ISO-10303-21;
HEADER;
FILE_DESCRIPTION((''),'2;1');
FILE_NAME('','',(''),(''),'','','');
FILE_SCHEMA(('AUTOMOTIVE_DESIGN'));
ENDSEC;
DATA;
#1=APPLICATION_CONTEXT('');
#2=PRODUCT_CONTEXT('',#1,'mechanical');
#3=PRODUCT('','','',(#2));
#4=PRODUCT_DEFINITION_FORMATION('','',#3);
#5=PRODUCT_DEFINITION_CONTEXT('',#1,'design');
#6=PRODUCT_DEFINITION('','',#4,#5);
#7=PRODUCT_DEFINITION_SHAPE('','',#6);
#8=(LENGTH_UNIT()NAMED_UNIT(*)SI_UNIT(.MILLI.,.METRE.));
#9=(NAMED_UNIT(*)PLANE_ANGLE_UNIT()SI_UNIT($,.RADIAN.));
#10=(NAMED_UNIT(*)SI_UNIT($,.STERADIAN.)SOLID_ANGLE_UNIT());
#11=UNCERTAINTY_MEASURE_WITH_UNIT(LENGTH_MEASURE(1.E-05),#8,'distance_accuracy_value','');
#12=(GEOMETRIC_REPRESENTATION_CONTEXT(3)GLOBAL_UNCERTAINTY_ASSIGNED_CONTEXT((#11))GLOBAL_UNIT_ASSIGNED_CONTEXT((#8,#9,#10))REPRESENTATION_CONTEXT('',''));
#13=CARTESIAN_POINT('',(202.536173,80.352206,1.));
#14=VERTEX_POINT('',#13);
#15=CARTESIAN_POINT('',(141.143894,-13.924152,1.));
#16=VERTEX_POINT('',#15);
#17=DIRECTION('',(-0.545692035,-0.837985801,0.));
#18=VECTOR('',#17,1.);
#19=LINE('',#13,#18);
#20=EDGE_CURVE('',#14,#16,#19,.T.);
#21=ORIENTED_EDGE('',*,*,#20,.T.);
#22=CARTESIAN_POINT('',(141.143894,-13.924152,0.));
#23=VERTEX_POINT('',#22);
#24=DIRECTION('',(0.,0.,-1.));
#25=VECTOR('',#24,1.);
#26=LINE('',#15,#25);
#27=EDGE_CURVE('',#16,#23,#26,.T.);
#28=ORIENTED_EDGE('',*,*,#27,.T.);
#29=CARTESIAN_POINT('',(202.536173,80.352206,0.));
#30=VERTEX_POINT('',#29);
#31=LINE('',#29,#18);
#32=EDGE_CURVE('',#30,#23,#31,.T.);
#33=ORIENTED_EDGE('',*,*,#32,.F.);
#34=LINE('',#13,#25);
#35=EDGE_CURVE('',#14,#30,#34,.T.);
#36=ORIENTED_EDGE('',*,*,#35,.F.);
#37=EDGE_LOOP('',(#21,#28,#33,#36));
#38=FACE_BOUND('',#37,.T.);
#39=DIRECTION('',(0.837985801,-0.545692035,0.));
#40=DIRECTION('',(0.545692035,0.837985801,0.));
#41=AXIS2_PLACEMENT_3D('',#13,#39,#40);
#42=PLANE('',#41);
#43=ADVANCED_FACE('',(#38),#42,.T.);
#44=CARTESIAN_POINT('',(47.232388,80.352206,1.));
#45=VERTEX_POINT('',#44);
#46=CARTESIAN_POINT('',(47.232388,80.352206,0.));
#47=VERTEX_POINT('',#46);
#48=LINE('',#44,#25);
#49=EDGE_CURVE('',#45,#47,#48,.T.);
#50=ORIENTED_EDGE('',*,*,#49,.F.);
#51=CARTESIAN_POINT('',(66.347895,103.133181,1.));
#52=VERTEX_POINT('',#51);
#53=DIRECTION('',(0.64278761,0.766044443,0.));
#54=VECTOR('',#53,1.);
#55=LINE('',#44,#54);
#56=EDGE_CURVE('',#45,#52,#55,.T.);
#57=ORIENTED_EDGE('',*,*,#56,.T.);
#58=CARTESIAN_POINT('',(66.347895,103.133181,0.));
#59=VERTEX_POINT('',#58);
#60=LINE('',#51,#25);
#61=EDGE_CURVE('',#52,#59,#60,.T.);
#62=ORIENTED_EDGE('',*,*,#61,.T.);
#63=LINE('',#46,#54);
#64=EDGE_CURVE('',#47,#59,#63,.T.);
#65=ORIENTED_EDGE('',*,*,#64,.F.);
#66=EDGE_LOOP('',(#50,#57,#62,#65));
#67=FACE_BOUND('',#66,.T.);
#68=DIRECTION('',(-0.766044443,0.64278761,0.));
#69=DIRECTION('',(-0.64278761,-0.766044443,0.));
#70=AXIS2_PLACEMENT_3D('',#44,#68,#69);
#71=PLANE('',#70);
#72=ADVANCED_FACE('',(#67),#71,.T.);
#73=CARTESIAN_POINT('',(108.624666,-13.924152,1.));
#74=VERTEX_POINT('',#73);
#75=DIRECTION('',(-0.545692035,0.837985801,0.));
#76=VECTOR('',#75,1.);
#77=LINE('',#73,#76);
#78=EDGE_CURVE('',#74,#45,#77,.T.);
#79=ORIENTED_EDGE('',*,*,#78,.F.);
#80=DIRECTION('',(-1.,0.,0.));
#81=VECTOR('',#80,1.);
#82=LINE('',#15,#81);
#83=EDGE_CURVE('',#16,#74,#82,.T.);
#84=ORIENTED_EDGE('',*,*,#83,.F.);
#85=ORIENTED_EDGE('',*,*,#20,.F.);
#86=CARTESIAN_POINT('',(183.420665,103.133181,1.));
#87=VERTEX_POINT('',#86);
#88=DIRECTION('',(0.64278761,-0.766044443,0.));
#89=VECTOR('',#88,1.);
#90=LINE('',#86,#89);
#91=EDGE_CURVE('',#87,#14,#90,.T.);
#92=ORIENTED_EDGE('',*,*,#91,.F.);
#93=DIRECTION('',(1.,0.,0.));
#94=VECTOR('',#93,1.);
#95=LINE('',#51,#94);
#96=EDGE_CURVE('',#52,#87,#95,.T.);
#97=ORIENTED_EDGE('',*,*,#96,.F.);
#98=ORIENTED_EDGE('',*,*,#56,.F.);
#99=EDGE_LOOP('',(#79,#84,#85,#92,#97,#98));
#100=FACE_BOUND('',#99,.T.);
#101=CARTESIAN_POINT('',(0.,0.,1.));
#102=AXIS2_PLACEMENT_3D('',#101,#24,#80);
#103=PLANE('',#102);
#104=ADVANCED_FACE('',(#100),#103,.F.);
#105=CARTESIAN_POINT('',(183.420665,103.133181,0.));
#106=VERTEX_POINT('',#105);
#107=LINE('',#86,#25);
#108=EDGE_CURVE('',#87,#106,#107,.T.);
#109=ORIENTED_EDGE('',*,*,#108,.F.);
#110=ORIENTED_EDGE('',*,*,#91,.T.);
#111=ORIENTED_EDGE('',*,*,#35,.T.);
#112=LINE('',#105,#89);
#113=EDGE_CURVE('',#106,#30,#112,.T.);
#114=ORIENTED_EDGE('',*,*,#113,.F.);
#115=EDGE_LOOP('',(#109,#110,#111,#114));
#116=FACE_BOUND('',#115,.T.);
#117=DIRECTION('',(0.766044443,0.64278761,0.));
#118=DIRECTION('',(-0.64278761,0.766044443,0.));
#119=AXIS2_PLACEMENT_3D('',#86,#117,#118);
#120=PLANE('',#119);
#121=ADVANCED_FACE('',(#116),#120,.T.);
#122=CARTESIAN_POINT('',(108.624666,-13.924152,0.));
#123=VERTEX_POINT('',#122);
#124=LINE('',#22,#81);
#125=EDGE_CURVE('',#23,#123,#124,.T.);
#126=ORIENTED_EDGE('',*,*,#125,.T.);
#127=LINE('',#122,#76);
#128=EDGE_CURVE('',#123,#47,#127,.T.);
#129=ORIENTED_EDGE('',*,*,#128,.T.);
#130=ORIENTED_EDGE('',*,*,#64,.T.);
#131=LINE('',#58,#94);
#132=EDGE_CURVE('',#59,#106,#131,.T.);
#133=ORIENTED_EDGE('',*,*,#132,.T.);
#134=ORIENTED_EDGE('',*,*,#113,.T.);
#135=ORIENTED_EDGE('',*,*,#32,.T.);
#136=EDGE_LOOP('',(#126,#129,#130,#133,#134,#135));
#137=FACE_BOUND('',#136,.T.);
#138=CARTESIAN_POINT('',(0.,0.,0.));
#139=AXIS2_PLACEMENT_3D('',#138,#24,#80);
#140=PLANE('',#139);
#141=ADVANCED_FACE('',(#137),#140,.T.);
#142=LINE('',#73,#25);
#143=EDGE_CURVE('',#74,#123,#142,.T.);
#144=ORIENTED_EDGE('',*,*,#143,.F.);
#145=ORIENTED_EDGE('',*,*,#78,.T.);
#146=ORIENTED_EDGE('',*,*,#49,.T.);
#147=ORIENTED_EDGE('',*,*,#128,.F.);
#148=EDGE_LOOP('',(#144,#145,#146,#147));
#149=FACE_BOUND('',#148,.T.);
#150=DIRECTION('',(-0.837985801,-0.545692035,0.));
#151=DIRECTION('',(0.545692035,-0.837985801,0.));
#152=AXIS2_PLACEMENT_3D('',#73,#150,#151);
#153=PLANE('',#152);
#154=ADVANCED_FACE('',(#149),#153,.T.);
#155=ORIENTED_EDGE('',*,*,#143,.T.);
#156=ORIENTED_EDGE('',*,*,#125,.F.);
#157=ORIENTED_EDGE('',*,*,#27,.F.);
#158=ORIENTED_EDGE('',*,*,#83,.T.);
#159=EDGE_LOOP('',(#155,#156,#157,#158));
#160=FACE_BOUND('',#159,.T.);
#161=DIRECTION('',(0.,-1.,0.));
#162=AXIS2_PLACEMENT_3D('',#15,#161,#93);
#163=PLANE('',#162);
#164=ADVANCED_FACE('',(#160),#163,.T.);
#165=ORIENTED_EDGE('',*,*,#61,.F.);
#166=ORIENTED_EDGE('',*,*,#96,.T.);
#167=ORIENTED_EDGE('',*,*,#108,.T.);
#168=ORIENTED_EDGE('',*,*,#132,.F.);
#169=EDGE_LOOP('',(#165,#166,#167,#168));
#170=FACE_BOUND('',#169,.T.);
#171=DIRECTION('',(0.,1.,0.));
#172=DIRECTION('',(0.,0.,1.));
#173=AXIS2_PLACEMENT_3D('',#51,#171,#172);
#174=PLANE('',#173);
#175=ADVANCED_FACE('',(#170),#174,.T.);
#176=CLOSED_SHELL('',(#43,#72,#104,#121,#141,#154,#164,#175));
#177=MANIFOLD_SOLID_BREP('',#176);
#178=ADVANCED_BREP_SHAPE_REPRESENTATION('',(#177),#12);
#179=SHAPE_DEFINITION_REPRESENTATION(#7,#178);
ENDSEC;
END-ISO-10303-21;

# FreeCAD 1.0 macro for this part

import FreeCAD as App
import Part
import Sketcher
Q = App.Units.Quantity


def add_polygon(sketch, points):
    """Adds a closed chain of lines whose ends are joined by coincident constraints."""
    first, n = sketch.GeometryCount, len(points)
    for a, b in zip(points, points[1:] + points[:1]):
        sketch.addGeometry(Part.LineSegment(App.Vector(*a, 0), App.Vector(*b, 0)), False)
    for i in range(n):
        sketch.addConstraint(Sketcher.Constraint("Coincident", first + i, 2, first + (i + 1) % n, 1))

doc = App.newDocument("Part")
body = doc.addObject("PartDesign::Body", "Body")

# Sketch on XY plane
sketch1 = body.newObject("Sketcher::SketchObject", "Sketch")
sketch1.AttachmentSupport = (doc.getObject("XY_Plane"), [""])
sketch1.MapMode = "FlatFace"
add_polygon(sketch1, [(203, 80), (183, 103), (66, 103), (47, 80), (109, -14), (141, -14)])  # lines 0-5
sketch1.addConstraint([
    Sketcher.Constraint("Horizontal", 1),
    Sketcher.Constraint("Horizontal", 4),
    Sketcher.Constraint("Horizontal", 2, 2, 5, 2),
    Sketcher.Constraint("Equal", 0, 2),
    Sketcher.Constraint("Equal", 3, 5),
    Sketcher.Constraint("Angle", 0, Q("130 deg")),
    Sketcher.Constraint("DistanceX", 3, 2, 0, 2, Q("74.795999 mm")),
    Sketcher.Constraint("DistanceX", 1, 2, 1, 1, Q("117.07277 mm")),
    Sketcher.Constraint("Distance", 0, Q("29.738451 mm")),
    Sketcher.Constraint("DistanceY", -1, 1, 0, 2, Q("103.133181 mm")),
    Sketcher.Constraint("DistanceY", 3, 2, 2, 2, Q("94.276358 mm")),
    Sketcher.Constraint("DistanceX", -1, 1, 0, 2, Q("183.420665 mm")),
])
pad1 = body.newObject("PartDesign::Pad", "Pad")
pad1.Profile = sketch1
pad1.Length = 1

doc.recompute()
